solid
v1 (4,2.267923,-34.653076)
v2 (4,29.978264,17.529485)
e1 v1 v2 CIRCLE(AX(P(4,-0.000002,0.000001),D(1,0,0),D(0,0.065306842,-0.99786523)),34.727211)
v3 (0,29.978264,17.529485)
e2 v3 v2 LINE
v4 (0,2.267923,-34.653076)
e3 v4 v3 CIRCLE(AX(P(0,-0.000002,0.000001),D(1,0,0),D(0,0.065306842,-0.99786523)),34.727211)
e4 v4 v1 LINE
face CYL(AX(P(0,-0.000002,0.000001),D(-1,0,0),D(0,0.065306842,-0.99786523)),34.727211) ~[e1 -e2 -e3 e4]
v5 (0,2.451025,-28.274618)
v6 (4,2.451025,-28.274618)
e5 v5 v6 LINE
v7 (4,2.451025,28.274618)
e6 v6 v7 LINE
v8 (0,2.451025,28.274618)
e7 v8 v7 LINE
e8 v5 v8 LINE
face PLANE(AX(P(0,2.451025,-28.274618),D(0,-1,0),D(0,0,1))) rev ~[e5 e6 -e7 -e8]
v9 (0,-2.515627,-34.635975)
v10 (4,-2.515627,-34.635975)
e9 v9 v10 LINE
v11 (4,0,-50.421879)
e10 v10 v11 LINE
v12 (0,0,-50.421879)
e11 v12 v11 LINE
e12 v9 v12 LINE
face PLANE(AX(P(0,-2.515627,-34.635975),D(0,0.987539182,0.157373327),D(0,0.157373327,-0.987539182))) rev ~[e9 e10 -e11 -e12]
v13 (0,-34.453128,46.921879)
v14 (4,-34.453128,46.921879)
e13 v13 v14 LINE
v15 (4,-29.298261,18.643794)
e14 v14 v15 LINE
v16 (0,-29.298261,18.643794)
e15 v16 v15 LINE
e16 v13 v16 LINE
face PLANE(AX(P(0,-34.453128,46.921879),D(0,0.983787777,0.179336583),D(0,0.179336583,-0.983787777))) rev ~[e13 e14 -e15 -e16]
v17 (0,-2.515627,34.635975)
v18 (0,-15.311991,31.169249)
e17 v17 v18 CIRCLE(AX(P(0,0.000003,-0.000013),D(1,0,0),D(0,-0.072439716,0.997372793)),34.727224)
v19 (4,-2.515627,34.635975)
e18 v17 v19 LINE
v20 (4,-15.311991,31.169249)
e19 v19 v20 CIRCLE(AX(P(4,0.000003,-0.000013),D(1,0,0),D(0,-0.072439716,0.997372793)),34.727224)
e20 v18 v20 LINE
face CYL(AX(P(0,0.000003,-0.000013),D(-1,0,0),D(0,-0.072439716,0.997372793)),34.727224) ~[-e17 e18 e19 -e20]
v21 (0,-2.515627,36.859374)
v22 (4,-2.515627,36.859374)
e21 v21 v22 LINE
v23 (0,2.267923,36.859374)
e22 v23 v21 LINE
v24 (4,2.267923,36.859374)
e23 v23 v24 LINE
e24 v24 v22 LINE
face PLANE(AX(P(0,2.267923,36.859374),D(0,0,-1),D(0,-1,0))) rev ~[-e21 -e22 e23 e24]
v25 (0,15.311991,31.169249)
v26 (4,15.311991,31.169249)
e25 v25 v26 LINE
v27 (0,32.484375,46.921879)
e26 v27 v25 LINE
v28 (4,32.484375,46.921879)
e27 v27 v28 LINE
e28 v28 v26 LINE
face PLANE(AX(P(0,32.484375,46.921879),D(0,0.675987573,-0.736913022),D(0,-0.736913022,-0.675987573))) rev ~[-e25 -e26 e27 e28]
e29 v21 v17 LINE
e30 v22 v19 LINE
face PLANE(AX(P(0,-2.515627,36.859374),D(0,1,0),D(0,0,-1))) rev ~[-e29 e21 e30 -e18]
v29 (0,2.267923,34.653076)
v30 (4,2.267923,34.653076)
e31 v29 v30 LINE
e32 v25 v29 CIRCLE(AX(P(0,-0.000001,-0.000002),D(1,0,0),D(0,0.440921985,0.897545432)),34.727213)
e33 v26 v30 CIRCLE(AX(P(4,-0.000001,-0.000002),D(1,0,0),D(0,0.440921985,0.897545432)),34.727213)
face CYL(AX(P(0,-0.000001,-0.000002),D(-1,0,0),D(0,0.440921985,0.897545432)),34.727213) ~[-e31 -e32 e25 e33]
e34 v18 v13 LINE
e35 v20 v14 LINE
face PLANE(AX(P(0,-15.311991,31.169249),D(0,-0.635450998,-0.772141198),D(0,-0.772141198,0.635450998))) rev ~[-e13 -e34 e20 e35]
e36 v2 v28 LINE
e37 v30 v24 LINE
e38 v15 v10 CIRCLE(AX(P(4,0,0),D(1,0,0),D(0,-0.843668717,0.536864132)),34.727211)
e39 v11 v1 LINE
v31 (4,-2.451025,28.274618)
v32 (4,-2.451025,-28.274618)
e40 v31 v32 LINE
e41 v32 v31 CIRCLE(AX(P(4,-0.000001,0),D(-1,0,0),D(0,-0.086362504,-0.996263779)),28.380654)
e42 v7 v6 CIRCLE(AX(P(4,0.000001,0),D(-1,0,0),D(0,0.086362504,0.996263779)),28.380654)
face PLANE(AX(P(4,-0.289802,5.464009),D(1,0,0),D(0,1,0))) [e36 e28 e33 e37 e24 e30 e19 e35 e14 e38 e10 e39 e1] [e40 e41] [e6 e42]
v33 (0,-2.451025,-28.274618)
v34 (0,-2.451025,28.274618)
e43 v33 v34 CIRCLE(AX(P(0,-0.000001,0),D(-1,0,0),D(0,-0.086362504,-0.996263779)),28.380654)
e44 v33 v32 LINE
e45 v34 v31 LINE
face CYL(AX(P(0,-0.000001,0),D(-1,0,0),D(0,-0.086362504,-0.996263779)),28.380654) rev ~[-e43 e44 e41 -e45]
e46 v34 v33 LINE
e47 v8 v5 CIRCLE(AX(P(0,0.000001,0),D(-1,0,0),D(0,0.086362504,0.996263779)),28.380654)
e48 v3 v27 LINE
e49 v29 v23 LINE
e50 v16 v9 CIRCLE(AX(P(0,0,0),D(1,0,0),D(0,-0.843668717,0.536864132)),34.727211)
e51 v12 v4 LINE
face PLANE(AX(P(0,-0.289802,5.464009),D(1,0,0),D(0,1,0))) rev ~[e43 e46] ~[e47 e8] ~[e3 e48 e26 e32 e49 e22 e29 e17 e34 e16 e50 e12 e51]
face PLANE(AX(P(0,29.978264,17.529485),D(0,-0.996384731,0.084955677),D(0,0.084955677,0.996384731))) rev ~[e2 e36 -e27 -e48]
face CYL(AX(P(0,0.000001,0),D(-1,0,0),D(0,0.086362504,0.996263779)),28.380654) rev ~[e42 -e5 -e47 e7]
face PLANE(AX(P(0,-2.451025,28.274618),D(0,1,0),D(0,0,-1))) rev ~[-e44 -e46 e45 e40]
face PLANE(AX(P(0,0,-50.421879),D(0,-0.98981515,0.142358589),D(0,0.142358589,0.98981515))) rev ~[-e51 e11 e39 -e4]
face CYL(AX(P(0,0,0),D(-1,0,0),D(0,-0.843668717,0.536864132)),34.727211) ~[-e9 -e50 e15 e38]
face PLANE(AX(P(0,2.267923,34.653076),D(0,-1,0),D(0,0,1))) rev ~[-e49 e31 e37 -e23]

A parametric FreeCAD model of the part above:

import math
import FreeCAD as App
import Part
import Sketcher
from FreeCAD import Vector
Q = App.Units.Quantity

doc = App.newDocument("Part")
params = doc.addObject("Spreadsheet::Sheet", "Params")
for row, (alias, value) in enumerate([
    ("pad1_length", "4 mm"),
], start=1):
    params.set(f"A{row}", alias)
    params.set(f"B{row}", "=" + value)
    params.setAlias(f"B{row}", alias)

body = doc.addObject("PartDesign::Body", "Body")

# Sketch on YZ plane
sketch1 = body.newObject("Sketcher::SketchObject", "Sketch")
sketch1.AttachmentSupport = (doc.getObject("YZ_Plane"), [""])
sketch1.MapMode = "FlatFace"
sketch1.addGeometry(Part.LineSegment(Vector(-34.453128, 46.921879, 0), Vector(-29.298261, 18.643794, 0)), False)
sketch1.addGeometry(Part.ArcOfCircle(Part.Circle(Vector(0, 0, 0), Vector(0, 0, 1), 34.727211), math.radians(147.529579), math.radians(265.845875)), False)
sketch1.addGeometry(Part.LineSegment(Vector(-2.515627, -34.635975, 0), Vector(0, -50.421879, 0)), False)
sketch1.addGeometry(Part.LineSegment(Vector(0, -50.421879, 0), Vector(2.267923, -34.653076, 0)), False)
sketch1.addGeometry(Part.ArcOfCircle(Part.Circle(Vector(-0.000002, 0.000001, 0), Vector(0, 0, 1), 34.727211), math.radians(-86.255529), math.radians(30.316524)), False)
sketch1.addGeometry(Part.LineSegment(Vector(29.978264, 17.529485, 0), Vector(32.484375, 46.921879, 0)), False)
sketch1.addGeometry(Part.LineSegment(Vector(32.484375, 46.921879, 0), Vector(15.311991, 31.169249, 0)), False)
sketch1.addGeometry(Part.ArcOfCircle(Part.Circle(Vector(-0.000001, -0.000002, 0), Vector(0, 0, 1), 34.727213), math.radians(63.837278), math.radians(86.25553)), False)
sketch1.addGeometry(Part.LineSegment(Vector(2.267923, 34.653076, 0), Vector(2.267923, 36.859374, 0)), False)
sketch1.addGeometry(Part.LineSegment(Vector(2.267923, 36.859374, 0), Vector(-2.515627, 36.859374, 0)), False)
sketch1.addGeometry(Part.LineSegment(Vector(-2.515627, 36.859374, 0), Vector(-2.515627, 34.635975, 0)), False)
sketch1.addGeometry(Part.ArcOfCircle(Part.Circle(Vector(0.000003, -0.000013, 0), Vector(0, 0, 1), 34.727224), math.radians(94.154129), math.radians(116.162718)), False)
sketch1.addGeometry(Part.LineSegment(Vector(-15.311991, 31.169249, 0), Vector(-34.453128, 46.921879, 0)), False)
sketch1.addGeometry(Part.LineSegment(Vector(-2.451025, 28.274618, 0), Vector(-2.451025, -28.274618, 0)), False)
sketch1.addGeometry(Part.ArcOfCircle(Part.Circle(Vector(-0.000001, 0, 0), Vector(0, 0, 1), 28.380654), math.radians(94.954379), math.radians(265.045621)), False)
sketch1.addGeometry(Part.ArcOfCircle(Part.Circle(Vector(0.000001, 0, 0), Vector(0, 0, 1), 28.380654), math.radians(-85.045621), math.radians(85.045621)), False)
sketch1.addGeometry(Part.LineSegment(Vector(2.451025, -28.274618, 0), Vector(2.451025, 28.274618, 0)), False)
sketch1.addConstraint(Sketcher.Constraint("Coincident", 0, 2, 1, 1))
sketch1.addConstraint(Sketcher.Constraint("Coincident", 1, 2, 2, 1))
sketch1.addConstraint(Sketcher.Constraint("Coincident", 2, 2, 3, 1))
sketch1.addConstraint(Sketcher.Constraint("Coincident", 3, 2, 4, 1))
sketch1.addConstraint(Sketcher.Constraint("Coincident", 4, 2, 5, 1))
sketch1.addConstraint(Sketcher.Constraint("Coincident", 5, 2, 6, 1))
sketch1.addConstraint(Sketcher.Constraint("Coincident", 6, 2, 7, 1))
sketch1.addConstraint(Sketcher.Constraint("Coincident", 7, 2, 8, 1))
sketch1.addConstraint(Sketcher.Constraint("Coincident", 8, 2, 9, 1))
sketch1.addConstraint(Sketcher.Constraint("Coincident", 9, 2, 10, 1))
sketch1.addConstraint(Sketcher.Constraint("Coincident", 10, 2, 11, 1))
sketch1.addConstraint(Sketcher.Constraint("Coincident", 11, 2, 12, 1))
sketch1.addConstraint(Sketcher.Constraint("Coincident", 12, 2, 0, 1))
sketch1.addConstraint(Sketcher.Constraint("Coincident", 13, 1, 14, 1))
sketch1.addConstraint(Sketcher.Constraint("Coincident", 14, 2, 13, 2))
sketch1.addConstraint(Sketcher.Constraint("Coincident", 15, 1, 16, 1))
sketch1.addConstraint(Sketcher.Constraint("Coincident", 16, 2, 15, 2))
sketch1.addConstraint(Sketcher.Constraint("Vertical", 8))
sketch1.addConstraint(Sketcher.Constraint("Horizontal", 9))
sketch1.addConstraint(Sketcher.Constraint("Vertical", 10))
sketch1.addConstraint(Sketcher.Constraint("Vertical", 13))
sketch1.addConstraint(Sketcher.Constraint("Vertical", 16))
sketch1.addConstraint(Sketcher.Constraint("Coincident", 1, 3, -1, 1))
sketch1.addConstraint(Sketcher.Constraint("Coincident", 4, 3, -1, 1))
sketch1.addConstraint(Sketcher.Constraint("Coincident", 7, 3, -1, 1))
sketch1.addConstraint(Sketcher.Constraint("Coincident", 14, 3, -1, 1))
sketch1.addConstraint(Sketcher.Constraint("Coincident", 15, 3, -1, 1))
sketch1.addConstraint(Sketcher.Constraint("Equal", 1, 4))
sketch1.addConstraint(Sketcher.Constraint("Equal", 4, 7))
sketch1.addConstraint(Sketcher.Constraint("Equal", 14, 15))
sketch1.addConstraint(Sketcher.Constraint("Symmetric", 6, 2, 11, 2, -2))
sketch1.addConstraint(Sketcher.Constraint("Symmetric", 1, 2, 10, 2, -1))
sketch1.addConstraint(Sketcher.Constraint("PointOnObject", 2, 2, -2))
sketch1.addConstraint(Sketcher.Constraint("Horizontal", 5, 2, 12, 2))
sketch1.addConstraint(Sketcher.Constraint("Horizontal", 14, 2, 15, 1))
sketch1.addConstraint(Sketcher.Constraint("Vertical", 3, 2, 7, 2))
sketch1.addConstraint(Sketcher.Constraint("Radius", 1, Q("34.727211 mm")))
sketch1.addConstraint(Sketcher.Constraint("DistanceY", 8, 1, 8, 2, Q("2.206298 mm")))
sketch1.addConstraint(Sketcher.Constraint("DistanceY", 10, 2, 10, 1, Q("2.223399 mm")))
sketch1.addConstraint(Sketcher.Constraint("Radius", 11, Q("34.727224 mm")))
sketch1.addConstraint(Sketcher.Constraint("Radius", 14, Q("28.380654 mm")))
sketch1.addConstraint(Sketcher.Constraint("DistanceX", 9, 2, 9, 1, Q("4.78355 mm")))
sketch1.addConstraint(Sketcher.Constraint("DistanceX", 12, 2, 9, 2, Q("31.937501 mm")))
sketch1.addConstraint(Sketcher.Constraint("DistanceX", 10, 2, 13, 1, Q("0.064602 mm")))
sketch1.addConstraint(Sketcher.Constraint("Distance", 0, Q("28.744091 mm")))
sketch1.addConstraint(Sketcher.Constraint("Distance", 2, Q("15.985091 mm")))
sketch1.addConstraint(Sketcher.Constraint("Distance", 5, Q("29.499041 mm")))
sketch1.addConstraint(Sketcher.Constraint("DistanceX", 0, 2, -1, 1, Q("29.298261 mm")))
sketch1.addConstraint(Sketcher.Constraint("DistanceX", -1, 1, 6, 2, Q("15.311991 mm")))
sketch1.addConstraint(Sketcher.Constraint("DistanceX", 4, 2, 5, 2, Q("2.506111 mm")))
pad1 = body.newObject("PartDesign::Pad", "Pad")
pad1.Profile = sketch1
pad1.setExpression("Length", "Params.pad1_length")

doc.recompute()
